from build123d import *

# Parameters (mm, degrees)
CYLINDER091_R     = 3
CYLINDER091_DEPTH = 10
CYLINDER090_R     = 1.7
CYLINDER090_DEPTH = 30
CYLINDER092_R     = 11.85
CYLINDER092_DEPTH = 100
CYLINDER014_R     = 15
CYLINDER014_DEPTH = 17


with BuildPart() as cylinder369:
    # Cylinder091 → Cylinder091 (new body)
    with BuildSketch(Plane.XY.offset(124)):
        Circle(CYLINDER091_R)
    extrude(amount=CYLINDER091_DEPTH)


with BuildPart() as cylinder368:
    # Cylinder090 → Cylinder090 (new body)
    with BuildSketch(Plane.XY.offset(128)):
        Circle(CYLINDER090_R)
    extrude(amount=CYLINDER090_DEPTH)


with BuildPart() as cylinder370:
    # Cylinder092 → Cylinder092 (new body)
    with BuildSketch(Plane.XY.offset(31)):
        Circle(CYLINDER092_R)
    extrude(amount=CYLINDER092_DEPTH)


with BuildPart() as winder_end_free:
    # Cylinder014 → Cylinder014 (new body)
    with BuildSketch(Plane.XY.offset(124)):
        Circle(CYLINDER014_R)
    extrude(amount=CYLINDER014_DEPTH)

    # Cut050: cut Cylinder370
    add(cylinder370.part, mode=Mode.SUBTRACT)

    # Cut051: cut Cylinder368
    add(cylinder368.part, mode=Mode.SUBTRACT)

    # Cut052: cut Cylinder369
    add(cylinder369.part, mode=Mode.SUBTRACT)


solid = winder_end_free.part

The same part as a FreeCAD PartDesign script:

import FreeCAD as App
import Part
import Sketcher

doc = App.newDocument("Part")
params = doc.addObject("Spreadsheet::Sheet", "Params")
for row, (alias, value) in enumerate([
    ("sketch1_diameter", "6 mm"),
    ("pad1_length", "10 mm"),
    ("sketch2_diameter", "3.4 mm"),
    ("pad2_length", "30 mm"),
    ("sketch3_diameter", "23.7 mm"),
    ("pad3_length", "100 mm"),
    ("sketch4_diameter", "30 mm"),
    ("pad4_length", "17 mm"),
], start=1):
    params.set(f"A{row}", alias)
    params.set(f"B{row}", "=" + value)
    params.setAlias(f"B{row}", alias)

body = doc.addObject("PartDesign::Body", "Body")

# Sketch on XY plane
sketch1 = doc.addObject("Sketcher::SketchObject", "Sketch")
body.addObject(sketch1)
sketch1.AttachmentSupport = (doc.XY_Plane, [""])
sketch1.MapMode = "FlatFace"
sketch1.AttachmentOffset = App.Placement(App.Vector(0, 0, 124), App.Rotation())
sketch1.addGeometry(Part.Circle(App.Vector(0, 0, 0), App.Vector(0, 0, 1), 3), False)
sketch1.addConstraint([
    Sketcher.Constraint("Coincident", 0, 3, -1, 1),
    Sketcher.Constraint("Diameter", 0, 6.0),
])
sketch1.setExpression("Constraints[1]", "Params.sketch1_diameter")
pad1 = doc.addObject("PartDesign::Pad", "Pad")
body.addObject(pad1)
pad1.Profile = sketch1
pad1.setExpression("Length", "Params.pad1_length")
body2 = doc.addObject("PartDesign::Body", "Body001")

# Sketch on XY plane
sketch2 = doc.addObject("Sketcher::SketchObject", "Sketch001")
body2.addObject(sketch2)
sketch2.AttachmentSupport = (doc.getObject("XY_Plane001"), [""])
sketch2.MapMode = "FlatFace"
sketch2.AttachmentOffset = App.Placement(App.Vector(0, 0, 128), App.Rotation())
sketch2.addGeometry(Part.Circle(App.Vector(0, 0, 0), App.Vector(0, 0, 1), 1.7), False)
sketch2.addConstraint([
    Sketcher.Constraint("Coincident", 0, 3, -1, 1),
    Sketcher.Constraint("Diameter", 0, 3.4),
])
sketch2.setExpression("Constraints[1]", "Params.sketch2_diameter")
pad2 = doc.addObject("PartDesign::Pad", "Pad001")
body2.addObject(pad2)
pad2.Profile = sketch2
pad2.setExpression("Length", "Params.pad2_length")
body3 = doc.addObject("PartDesign::Body", "Body002")

# Sketch on XY plane
sketch3 = doc.addObject("Sketcher::SketchObject", "Sketch002")
body3.addObject(sketch3)
sketch3.AttachmentSupport = (doc.getObject("XY_Plane002"), [""])
sketch3.MapMode = "FlatFace"
sketch3.AttachmentOffset = App.Placement(App.Vector(0, 0, 31), App.Rotation())
sketch3.addGeometry(Part.Circle(App.Vector(0, 0, 0), App.Vector(0, 0, 1), 11.85), False)
sketch3.addConstraint([
    Sketcher.Constraint("Coincident", 0, 3, -1, 1),
    Sketcher.Constraint("Diameter", 0, 23.7),
])
sketch3.setExpression("Constraints[1]", "Params.sketch3_diameter")
pad3 = doc.addObject("PartDesign::Pad", "Pad002")
body3.addObject(pad3)
pad3.Profile = sketch3
pad3.setExpression("Length", "Params.pad3_length")
body4 = doc.addObject("PartDesign::Body", "Body003")

# Sketch on XY plane
sketch4 = doc.addObject("Sketcher::SketchObject", "Sketch003")
body4.addObject(sketch4)
sketch4.AttachmentSupport = (doc.getObject("XY_Plane003"), [""])
sketch4.MapMode = "FlatFace"
sketch4.AttachmentOffset = App.Placement(App.Vector(0, 0, 124), App.Rotation())
sketch4.addGeometry(Part.Circle(App.Vector(0, 0, 0), App.Vector(0, 0, 1), 15), False)
sketch4.addConstraint([
    Sketcher.Constraint("Coincident", 0, 3, -1, 1),
    Sketcher.Constraint("Diameter", 0, 30.0),
])
sketch4.setExpression("Constraints[1]", "Params.sketch4_diameter")
pad4 = doc.addObject("PartDesign::Pad", "Pad003")
body4.addObject(pad4)
pad4.Profile = sketch4
pad4.setExpression("Length", "Params.pad4_length")
doc.recompute()

boolean = doc.addObject("PartDesign::Boolean", "Boolean")
body4.addObject(boolean)
boolean.Type = "Cut"
boolean.addObjects([body3])
doc.recompute()

boolean2 = doc.addObject("PartDesign::Boolean", "Boolean001")
body4.addObject(boolean2)
boolean2.Type = "Cut"
boolean2.addObjects([body2])
doc.recompute()

boolean3 = doc.addObject("PartDesign::Boolean", "Boolean002")
body4.addObject(boolean3)
boolean3.Type = "Cut"
boolean3.addObjects([body])

doc.recompute()
